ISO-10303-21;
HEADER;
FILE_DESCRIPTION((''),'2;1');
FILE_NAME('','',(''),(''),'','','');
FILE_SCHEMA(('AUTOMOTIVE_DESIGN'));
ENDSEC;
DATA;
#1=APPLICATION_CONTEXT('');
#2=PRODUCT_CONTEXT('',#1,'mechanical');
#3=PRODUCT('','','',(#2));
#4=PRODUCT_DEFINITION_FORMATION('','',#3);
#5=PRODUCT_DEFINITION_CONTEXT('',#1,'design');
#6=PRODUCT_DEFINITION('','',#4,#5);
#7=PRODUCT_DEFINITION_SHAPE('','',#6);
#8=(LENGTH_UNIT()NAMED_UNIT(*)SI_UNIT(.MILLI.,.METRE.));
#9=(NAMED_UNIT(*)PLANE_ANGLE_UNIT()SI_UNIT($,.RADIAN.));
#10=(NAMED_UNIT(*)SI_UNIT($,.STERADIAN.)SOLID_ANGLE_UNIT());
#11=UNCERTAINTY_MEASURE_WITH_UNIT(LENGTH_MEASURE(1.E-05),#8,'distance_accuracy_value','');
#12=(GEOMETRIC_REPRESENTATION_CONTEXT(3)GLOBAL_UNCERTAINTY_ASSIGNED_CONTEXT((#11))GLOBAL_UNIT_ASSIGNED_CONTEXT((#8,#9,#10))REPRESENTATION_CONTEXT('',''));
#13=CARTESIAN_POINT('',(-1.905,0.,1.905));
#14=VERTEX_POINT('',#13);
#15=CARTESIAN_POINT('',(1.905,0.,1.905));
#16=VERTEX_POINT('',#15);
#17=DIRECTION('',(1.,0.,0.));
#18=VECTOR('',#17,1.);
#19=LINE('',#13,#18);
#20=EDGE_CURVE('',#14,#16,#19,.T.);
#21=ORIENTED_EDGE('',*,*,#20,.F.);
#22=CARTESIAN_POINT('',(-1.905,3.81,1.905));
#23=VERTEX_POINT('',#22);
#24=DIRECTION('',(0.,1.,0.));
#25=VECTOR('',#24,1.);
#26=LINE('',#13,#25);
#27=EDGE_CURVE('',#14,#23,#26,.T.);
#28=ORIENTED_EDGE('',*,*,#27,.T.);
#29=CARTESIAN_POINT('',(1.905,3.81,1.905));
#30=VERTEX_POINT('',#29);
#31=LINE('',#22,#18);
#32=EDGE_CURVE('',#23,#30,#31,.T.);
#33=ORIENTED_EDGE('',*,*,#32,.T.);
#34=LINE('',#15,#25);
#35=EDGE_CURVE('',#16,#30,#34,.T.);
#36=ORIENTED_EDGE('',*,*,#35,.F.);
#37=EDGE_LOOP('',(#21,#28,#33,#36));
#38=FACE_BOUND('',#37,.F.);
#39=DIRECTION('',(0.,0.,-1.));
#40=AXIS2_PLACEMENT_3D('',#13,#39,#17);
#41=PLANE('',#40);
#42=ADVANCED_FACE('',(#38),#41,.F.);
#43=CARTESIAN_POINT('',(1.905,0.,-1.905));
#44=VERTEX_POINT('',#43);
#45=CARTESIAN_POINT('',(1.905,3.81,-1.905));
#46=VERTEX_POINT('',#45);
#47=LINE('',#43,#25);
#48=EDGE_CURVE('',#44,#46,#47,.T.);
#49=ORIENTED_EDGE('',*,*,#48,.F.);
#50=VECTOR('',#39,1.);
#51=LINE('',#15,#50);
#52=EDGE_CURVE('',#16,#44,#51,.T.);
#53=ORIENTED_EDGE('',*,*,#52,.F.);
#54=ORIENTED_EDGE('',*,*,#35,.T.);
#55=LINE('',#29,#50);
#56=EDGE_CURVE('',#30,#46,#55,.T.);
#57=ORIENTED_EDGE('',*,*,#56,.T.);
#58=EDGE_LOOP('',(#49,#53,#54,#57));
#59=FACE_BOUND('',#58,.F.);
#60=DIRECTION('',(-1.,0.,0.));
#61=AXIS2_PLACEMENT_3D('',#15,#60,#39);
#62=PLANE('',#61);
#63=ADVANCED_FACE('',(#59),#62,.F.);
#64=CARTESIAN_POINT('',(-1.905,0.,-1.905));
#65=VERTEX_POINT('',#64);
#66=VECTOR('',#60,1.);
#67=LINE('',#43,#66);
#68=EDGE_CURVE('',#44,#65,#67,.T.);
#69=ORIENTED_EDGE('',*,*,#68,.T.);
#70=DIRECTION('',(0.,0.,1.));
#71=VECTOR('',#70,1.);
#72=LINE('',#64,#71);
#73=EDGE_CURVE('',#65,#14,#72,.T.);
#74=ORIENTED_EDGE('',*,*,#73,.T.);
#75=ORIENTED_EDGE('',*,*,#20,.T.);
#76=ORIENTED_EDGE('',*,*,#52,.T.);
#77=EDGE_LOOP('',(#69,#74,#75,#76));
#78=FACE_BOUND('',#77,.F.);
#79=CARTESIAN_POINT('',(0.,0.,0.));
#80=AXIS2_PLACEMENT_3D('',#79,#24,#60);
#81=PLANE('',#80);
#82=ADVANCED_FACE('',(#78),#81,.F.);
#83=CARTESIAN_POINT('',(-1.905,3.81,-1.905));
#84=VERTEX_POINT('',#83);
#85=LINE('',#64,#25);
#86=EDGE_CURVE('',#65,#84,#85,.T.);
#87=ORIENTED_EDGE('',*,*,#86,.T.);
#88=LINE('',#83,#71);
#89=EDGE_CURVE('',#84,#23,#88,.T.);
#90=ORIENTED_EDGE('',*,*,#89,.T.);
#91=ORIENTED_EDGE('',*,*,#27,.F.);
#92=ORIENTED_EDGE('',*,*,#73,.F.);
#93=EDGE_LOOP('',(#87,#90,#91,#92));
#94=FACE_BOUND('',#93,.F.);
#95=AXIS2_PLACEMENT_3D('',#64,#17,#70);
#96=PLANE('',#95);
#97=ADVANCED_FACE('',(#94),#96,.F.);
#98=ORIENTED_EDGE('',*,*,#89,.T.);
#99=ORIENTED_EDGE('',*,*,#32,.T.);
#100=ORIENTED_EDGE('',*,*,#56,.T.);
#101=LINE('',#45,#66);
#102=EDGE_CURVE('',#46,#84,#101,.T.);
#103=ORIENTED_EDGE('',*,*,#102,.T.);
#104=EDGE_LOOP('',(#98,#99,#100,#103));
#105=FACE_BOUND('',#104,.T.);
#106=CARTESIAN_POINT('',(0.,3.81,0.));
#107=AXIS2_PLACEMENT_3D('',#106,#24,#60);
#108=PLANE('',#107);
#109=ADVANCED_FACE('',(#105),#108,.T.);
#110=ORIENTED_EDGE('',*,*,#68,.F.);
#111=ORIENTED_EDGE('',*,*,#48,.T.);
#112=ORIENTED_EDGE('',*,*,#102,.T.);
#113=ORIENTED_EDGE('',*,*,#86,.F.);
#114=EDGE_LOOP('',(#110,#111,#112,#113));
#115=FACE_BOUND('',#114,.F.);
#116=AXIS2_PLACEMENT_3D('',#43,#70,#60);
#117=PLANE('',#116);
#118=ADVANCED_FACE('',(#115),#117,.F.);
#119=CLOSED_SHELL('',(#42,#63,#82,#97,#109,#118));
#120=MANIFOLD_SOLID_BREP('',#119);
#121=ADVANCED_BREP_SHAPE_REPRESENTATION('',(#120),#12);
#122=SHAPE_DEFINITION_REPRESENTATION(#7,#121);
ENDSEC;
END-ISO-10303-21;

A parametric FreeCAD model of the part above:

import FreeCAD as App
import Part
import Sketcher
from FreeCAD import Vector
Q = App.Units.Quantity

doc = App.newDocument("Part")
body = doc.addObject("PartDesign::Body", "Body")

# Sketch on XZ plane
sketch1 = body.newObject("Sketcher::SketchObject", "Sketch")
sketch1.AttachmentSupport = (doc.getObject("XZ_Plane"), [""])
sketch1.MapMode = "FlatFace"
sketch1.addGeometry(Part.LineSegment(Vector(-1.9, -1.9, 0), Vector(-1.9, 1.9, 0)), False)
sketch1.addGeometry(Part.LineSegment(Vector(-1.9, 1.9, 0), Vector(1.9, 1.9, 0)), False)
sketch1.addGeometry(Part.LineSegment(Vector(1.9, 1.9, 0), Vector(1.9, -1.9, 0)), False)
sketch1.addGeometry(Part.LineSegment(Vector(1.9, -1.9, 0), Vector(-1.9, -1.9, 0)), False)
sketch1.addConstraint(Sketcher.Constraint("Coincident", 0, 2, 1, 1))
sketch1.addConstraint(Sketcher.Constraint("Coincident", 1, 2, 2, 1))
sketch1.addConstraint(Sketcher.Constraint("Coincident", 2, 2, 3, 1))
sketch1.addConstraint(Sketcher.Constraint("Coincident", 3, 2, 0, 1))
sketch1.addConstraint(Sketcher.Constraint("Vertical", 0))
sketch1.addConstraint(Sketcher.Constraint("Horizontal", 1))
sketch1.addConstraint(Sketcher.Constraint("Vertical", 2))
sketch1.addConstraint(Sketcher.Constraint("Horizontal", 3))
sketch1.addConstraint(Sketcher.Constraint("Symmetric", 0, 2, 2, 2, -1, 1))
sketch1.addConstraint(Sketcher.Constraint("Equal", 3, 0))
sketch1.addConstraint(Sketcher.Constraint("DistanceX", 1, 1, 1, 2, Q("0.15 in")))
pad1 = body.newObject("PartDesign::Pad", "Pad")
pad1.Profile = sketch1
pad1.Length = Q("0.15 in")
pad1.Reversed = True

doc.recompute()
